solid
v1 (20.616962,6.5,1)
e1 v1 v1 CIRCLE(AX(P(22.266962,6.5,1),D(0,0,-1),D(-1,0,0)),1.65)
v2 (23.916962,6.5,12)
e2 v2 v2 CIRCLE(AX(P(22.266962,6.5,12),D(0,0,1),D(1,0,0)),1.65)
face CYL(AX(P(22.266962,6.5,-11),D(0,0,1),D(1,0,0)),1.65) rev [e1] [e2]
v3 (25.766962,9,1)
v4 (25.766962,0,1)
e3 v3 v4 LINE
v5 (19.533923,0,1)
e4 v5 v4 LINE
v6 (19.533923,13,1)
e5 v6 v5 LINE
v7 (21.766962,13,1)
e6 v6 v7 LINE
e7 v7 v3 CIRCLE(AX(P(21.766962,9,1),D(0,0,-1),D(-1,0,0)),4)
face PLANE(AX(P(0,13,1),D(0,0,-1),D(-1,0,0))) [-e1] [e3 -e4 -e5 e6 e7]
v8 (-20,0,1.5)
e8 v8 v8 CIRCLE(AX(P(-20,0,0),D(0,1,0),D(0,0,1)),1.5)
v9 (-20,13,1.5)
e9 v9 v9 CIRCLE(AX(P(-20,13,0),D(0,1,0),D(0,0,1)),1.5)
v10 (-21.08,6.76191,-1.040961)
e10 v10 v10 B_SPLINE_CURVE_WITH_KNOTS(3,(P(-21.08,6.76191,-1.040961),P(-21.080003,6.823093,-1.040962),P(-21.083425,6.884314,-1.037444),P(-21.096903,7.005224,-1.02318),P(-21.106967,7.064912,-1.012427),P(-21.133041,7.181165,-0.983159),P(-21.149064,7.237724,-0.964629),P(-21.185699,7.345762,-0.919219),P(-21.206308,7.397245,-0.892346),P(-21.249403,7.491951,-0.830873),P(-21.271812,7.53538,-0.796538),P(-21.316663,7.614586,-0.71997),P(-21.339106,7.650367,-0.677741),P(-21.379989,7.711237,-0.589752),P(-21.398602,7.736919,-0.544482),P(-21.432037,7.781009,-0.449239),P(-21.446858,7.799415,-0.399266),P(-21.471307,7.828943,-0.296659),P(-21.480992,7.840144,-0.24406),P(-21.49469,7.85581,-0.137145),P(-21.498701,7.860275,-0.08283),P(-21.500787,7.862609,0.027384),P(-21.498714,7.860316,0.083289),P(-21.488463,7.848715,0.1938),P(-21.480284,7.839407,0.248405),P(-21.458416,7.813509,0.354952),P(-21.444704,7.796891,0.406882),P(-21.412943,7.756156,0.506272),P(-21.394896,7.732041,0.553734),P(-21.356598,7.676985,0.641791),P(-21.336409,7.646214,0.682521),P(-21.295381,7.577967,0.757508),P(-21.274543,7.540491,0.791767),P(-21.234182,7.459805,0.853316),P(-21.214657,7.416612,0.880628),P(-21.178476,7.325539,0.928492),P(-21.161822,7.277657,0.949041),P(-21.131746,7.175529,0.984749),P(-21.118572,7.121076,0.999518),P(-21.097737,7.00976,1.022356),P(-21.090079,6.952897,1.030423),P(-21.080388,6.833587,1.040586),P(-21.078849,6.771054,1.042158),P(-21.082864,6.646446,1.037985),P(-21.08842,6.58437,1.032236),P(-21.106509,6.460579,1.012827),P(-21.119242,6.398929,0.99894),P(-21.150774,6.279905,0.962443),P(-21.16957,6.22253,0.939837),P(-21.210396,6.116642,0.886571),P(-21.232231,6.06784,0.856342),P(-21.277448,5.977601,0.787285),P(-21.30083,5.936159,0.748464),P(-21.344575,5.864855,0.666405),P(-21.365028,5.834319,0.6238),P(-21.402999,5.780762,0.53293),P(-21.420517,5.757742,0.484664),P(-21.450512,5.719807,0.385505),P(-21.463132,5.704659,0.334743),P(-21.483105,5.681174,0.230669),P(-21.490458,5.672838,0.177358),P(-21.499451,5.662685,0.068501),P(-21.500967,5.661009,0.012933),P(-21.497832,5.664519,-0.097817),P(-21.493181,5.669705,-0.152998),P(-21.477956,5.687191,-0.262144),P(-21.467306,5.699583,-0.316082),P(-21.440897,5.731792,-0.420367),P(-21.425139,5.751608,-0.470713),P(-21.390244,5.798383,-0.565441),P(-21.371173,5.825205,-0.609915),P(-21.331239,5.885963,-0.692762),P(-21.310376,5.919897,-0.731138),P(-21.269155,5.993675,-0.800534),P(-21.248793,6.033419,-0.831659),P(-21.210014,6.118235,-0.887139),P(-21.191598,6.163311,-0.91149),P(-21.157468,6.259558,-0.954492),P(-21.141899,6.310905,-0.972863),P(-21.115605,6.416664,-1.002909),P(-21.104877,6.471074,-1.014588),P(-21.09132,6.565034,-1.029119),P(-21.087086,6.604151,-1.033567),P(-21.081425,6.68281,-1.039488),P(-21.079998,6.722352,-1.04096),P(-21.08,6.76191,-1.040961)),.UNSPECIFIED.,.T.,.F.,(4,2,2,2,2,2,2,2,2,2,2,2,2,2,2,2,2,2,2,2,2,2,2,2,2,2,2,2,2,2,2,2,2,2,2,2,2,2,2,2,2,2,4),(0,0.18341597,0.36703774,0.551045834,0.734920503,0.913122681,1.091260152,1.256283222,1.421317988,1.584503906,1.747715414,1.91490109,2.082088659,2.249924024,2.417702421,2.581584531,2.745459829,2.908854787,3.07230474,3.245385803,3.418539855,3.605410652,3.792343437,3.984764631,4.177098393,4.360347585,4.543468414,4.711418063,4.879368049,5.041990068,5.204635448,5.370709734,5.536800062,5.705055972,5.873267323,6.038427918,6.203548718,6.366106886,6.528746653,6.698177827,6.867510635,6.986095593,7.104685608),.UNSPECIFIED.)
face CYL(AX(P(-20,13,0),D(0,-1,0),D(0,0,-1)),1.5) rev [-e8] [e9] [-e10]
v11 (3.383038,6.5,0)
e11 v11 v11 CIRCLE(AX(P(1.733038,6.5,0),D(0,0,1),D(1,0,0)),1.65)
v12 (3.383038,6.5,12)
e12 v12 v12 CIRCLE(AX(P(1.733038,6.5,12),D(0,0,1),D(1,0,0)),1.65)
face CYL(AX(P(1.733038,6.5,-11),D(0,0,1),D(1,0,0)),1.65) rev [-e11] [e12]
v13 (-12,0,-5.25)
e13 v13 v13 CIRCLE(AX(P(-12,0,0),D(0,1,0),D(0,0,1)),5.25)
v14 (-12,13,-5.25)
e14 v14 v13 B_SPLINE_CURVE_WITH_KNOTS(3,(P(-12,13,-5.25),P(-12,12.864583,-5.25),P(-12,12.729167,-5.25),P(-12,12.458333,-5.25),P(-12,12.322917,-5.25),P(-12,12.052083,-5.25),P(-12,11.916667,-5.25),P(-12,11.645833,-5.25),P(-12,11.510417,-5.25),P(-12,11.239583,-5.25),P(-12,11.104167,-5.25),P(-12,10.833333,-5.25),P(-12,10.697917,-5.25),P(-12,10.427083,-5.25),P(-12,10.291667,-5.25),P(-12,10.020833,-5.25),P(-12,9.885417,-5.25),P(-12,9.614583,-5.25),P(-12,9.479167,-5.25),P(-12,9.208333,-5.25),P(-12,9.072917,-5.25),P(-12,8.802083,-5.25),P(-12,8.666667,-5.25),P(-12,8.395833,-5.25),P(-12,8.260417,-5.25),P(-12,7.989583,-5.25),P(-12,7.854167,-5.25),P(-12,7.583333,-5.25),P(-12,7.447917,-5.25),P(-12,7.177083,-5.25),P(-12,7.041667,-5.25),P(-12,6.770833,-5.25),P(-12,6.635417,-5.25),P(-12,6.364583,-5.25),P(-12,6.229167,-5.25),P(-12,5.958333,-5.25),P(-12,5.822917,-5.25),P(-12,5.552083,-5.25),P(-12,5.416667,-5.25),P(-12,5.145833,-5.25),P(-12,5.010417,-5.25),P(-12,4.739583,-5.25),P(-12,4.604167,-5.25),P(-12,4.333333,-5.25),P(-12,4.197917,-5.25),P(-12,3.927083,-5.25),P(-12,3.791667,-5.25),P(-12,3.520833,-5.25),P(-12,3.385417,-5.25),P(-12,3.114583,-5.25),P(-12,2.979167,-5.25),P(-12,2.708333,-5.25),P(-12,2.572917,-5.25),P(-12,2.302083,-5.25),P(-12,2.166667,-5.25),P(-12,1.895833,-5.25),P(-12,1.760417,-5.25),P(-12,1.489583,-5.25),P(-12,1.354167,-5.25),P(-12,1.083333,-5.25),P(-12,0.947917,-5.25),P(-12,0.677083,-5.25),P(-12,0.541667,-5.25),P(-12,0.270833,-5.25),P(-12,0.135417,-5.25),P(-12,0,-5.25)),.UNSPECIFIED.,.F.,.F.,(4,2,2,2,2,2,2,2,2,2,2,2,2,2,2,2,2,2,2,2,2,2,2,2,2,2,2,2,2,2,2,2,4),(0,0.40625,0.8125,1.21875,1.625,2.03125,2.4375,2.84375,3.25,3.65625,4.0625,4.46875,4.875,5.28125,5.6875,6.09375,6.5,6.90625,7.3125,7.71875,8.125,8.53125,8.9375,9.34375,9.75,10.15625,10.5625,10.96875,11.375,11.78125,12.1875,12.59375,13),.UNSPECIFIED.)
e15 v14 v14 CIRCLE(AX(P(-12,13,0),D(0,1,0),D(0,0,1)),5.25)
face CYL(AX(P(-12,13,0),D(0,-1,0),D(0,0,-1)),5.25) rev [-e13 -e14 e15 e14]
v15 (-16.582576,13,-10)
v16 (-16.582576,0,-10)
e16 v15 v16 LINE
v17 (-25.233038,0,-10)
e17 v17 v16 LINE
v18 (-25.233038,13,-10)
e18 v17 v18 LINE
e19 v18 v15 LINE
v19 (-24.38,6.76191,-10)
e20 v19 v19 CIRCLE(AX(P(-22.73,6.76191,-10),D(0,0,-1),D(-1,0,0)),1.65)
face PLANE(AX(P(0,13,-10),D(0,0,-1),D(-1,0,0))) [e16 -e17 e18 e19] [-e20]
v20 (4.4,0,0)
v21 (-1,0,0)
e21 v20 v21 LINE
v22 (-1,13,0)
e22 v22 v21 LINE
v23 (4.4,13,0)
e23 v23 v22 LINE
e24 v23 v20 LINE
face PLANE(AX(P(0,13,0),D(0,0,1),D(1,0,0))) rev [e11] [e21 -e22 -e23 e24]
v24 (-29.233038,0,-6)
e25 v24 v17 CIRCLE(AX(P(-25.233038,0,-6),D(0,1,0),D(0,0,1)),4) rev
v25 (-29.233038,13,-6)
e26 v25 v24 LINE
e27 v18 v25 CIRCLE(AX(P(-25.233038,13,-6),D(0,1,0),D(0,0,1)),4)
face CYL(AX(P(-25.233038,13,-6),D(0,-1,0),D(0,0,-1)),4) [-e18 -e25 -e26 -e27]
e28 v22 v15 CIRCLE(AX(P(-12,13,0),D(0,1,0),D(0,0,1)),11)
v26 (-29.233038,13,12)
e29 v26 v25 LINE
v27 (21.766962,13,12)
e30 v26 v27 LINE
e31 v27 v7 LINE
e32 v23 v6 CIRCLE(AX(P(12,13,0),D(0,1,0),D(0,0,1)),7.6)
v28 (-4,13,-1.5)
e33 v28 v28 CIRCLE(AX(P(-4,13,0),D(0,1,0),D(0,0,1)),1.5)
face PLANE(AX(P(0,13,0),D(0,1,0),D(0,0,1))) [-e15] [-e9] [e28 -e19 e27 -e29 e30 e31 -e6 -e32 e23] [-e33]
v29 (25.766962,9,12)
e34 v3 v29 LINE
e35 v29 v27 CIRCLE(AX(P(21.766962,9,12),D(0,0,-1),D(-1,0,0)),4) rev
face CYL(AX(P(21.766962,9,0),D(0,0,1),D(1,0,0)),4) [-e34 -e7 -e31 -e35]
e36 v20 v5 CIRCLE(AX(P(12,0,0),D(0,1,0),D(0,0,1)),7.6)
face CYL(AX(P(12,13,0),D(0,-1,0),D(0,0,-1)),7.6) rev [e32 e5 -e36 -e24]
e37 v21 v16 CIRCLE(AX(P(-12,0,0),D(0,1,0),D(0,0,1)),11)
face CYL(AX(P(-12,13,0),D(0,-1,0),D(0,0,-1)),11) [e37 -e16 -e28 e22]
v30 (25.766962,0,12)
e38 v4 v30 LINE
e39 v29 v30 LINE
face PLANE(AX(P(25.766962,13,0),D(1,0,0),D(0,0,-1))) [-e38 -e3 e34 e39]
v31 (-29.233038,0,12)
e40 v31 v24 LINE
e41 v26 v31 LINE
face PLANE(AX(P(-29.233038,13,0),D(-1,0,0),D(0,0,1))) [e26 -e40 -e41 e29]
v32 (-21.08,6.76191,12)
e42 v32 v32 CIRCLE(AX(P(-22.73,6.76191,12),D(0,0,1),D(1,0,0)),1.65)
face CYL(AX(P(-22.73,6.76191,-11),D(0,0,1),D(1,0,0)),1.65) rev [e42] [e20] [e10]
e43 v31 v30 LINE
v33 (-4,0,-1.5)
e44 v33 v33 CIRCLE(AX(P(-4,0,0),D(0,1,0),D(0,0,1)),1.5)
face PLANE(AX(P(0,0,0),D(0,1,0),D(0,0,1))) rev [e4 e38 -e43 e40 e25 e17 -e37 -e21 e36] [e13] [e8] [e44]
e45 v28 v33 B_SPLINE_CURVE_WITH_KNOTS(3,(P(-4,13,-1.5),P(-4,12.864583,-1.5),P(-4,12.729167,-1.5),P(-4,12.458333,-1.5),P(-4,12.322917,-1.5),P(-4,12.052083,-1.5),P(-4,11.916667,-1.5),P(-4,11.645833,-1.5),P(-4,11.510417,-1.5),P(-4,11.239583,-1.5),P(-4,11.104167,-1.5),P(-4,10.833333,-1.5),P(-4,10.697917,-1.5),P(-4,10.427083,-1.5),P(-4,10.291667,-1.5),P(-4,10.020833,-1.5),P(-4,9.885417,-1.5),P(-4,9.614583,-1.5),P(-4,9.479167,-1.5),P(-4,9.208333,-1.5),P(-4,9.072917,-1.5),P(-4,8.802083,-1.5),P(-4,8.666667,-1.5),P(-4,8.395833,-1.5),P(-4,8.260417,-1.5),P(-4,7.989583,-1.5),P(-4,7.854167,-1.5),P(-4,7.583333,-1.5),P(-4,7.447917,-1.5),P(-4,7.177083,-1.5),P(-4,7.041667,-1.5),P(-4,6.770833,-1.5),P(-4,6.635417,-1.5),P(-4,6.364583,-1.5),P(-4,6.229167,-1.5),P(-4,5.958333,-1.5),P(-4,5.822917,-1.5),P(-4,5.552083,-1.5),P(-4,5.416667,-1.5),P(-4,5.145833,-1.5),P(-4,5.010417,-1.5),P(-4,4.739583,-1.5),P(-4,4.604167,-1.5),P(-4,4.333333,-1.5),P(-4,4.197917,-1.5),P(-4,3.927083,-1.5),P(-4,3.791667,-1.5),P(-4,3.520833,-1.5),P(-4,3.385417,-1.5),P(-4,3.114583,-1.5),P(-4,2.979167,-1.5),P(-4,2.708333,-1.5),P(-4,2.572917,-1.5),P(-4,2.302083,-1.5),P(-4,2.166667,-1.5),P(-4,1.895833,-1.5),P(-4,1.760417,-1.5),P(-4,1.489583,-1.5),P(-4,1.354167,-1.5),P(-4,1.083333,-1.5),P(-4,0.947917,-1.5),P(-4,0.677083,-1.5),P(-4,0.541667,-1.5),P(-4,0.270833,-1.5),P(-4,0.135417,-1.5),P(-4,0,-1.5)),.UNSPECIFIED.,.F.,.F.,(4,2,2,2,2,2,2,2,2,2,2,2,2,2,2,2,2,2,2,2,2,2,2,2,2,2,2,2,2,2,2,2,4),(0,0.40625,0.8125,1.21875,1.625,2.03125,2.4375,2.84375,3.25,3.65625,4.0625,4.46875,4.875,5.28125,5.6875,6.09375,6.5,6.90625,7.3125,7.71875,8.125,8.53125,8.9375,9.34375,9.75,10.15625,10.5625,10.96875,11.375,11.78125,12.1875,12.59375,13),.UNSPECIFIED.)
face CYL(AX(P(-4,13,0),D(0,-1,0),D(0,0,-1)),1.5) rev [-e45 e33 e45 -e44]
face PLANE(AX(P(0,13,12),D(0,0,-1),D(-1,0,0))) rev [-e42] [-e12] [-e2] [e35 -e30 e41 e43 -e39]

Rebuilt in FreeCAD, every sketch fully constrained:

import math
import FreeCAD as App
import Part
import Sketcher

V = App.Vector
Q = App.Units.Quantity


def edges_at(feature, points):
    """Names of the edges that pass closest to the given points."""
    edges = feature.Shape.Edges
    near = lambda p: min(range(len(edges)), key=lambda i: edges[i].distToShape(Part.Vertex(*p))[0])
    return sorted({f"Edge{near(p) + 1}" for p in points})

doc = App.newDocument("Part")
body = doc.addObject("PartDesign::Body", "Body")

sketch1 = doc.addObject("Sketcher::SketchObject", "Sketch")
body.addObject(sketch1)
sketch1.AttachmentSupport = (doc.XZ_Plane, [""])
sketch1.MapMode = "FlatFace"
sketch1.addGeometry([
    Part.LineSegment(V(-16.582576, -10, 0), V(-29.233038, -10, 0)),
    Part.LineSegment(V(-29.233038, -10, 0), V(-29.233038, 12, 0)),
    Part.LineSegment(V(-29.233038, 12, 0), V(25.766962, 12, 0)),
    Part.LineSegment(V(25.766962, 12, 0), V(25.766962, 1, 0)),
    Part.LineSegment(V(25.766962, 1, 0), V(19.533923, 1, 0)),
    Part.ArcOfCircle(Part.Circle(V(12, 0, 0), V(0, 0, 1), 7.6), math.radians(7.560843), math.radians(180)),
    Part.LineSegment(V(4.4, 0, 0), V(-1, 0, 0)),
    Part.ArcOfCircle(Part.Circle(V(-12, 0, 0), V(0, 0, 1), 11), math.radians(-114.619977), math.radians(0)),
    Part.Circle(V(-20, 0, 0), V(0, 0, 1), 1.5),
    Part.Circle(V(-12, 0, 0), V(0, 0, 1), 5.25),
    Part.Circle(V(-4, 0, 0), V(0, 0, 1), 1.5),
], False)
sketch1.addConstraint([
    Sketcher.Constraint("Coincident", 0, 2, 1, 1),
    Sketcher.Constraint("Coincident", 1, 2, 2, 1),
    Sketcher.Constraint("Coincident", 2, 2, 3, 1),
    Sketcher.Constraint("Coincident", 3, 2, 4, 1),
    Sketcher.Constraint("Coincident", 4, 2, 5, 1),
    Sketcher.Constraint("Coincident", 5, 2, 6, 1),
    Sketcher.Constraint("Coincident", 6, 2, 7, 2),
    Sketcher.Constraint("Coincident", 7, 1, 0, 1),
    Sketcher.Constraint("Horizontal", 0),
    Sketcher.Constraint("Vertical", 1),
    Sketcher.Constraint("Horizontal", 2),
    Sketcher.Constraint("Vertical", 3),
    Sketcher.Constraint("Horizontal", 4),
    Sketcher.Constraint("Horizontal", 6),
    Sketcher.Constraint("Coincident", 9, 3, 7, 3),
    Sketcher.Constraint("Equal", 8, 10),
    Sketcher.Constraint("Symmetric", 5, 3, 7, 3, -1, 1),
    Sketcher.Constraint("PointOnObject", 5, 3, -1),
    Sketcher.Constraint("PointOnObject", 8, 3, -1),
    Sketcher.Constraint("PointOnObject", 10, 3, -1),
    Sketcher.Constraint("PointOnObject", 5, 2, -1),
    Sketcher.Constraint("Diameter", 8, Q("3 mm")),
    Sketcher.Constraint("Radius", 7, Q("11 mm")),
    Sketcher.Constraint("Diameter", 9, Q("10.5 mm")),
    Sketcher.Constraint("Radius", 5, Q("7.6 mm")),
    Sketcher.Constraint("DistanceX", 2, 1, 2, 2, Q("55 mm")),
    Sketcher.Constraint("DistanceY", 1, 1, 1, 2, Q("22 mm")),
    Sketcher.Constraint("DistanceY", 3, 2, 3, 1, Q("11 mm")),
    Sketcher.Constraint("DistanceX", 6, 2, 6, 1, Q("5.4 mm")),
    Sketcher.Constraint("DistanceX", 8, 3, -1, 1, Q("20 mm")),
    Sketcher.Constraint("DistanceX", 10, 3, -1, 1, Q("4 mm")),
    Sketcher.Constraint("DistanceY", 0, 2, -1, 1, Q("10 mm")),
    Sketcher.Constraint("DistanceX", 4, 2, 4, 1, Q("6.233038 mm")),
])
pad1 = doc.addObject("PartDesign::Pad", "Pad")
body.addObject(pad1)
pad1.Profile = sketch1
pad1.Length = 13
pad1.Reversed = True
doc.recompute()

fillet = doc.addObject("PartDesign::Fillet", "Fillet")
body.addObject(fillet)
fillet.Base = (pad1, edges_at(pad1, [(25.767, 13, 6.5)]))
fillet.Radius = 4
doc.recompute()

fillet2 = doc.addObject("PartDesign::Fillet", "Fillet001")
body.addObject(fillet2)
fillet2.Base = (fillet, edges_at(fillet, [(-29.233, 6.5, -10)]))
fillet2.Radius = 4

sketch2 = doc.addObject("Sketcher::SketchObject", "Sketch001")
body.addObject(sketch2)
sketch2.AttachmentSupport = (doc.XY_Plane, [""])
sketch2.MapMode = "FlatFace"
sketch2.AttachmentOffset = App.Placement(V(0, 0, 12), App.Rotation())
sketch2.addGeometry([
    Part.Circle(V(22.266962, 6.5, 0), V(0, 0, 1), 1.65),
    Part.Circle(V(1.733038, 6.5, 0), V(0, 0, 1), 1.65),
    Part.Circle(V(-22.73, 6.76191, 0), V(0, 0, 1), 1.65),
], False)
sketch2.addConstraint([
    Sketcher.Constraint("Equal", 0, 1),
    Sketcher.Constraint("Equal", 1, 2),
    Sketcher.Constraint("Horizontal", 0, 3, 1, 3),
    Sketcher.Constraint("Diameter", 0, Q("3.3 mm")),
    Sketcher.Constraint("DistanceY", -1, 1, 0, 3, Q("6.5 mm")),
    Sketcher.Constraint("DistanceX", 2, 3, -1, 1, Q("22.73 mm")),
    Sketcher.Constraint("DistanceX", -1, 1, 0, 3, Q("22.266962 mm")),
    Sketcher.Constraint("DistanceX", -1, 1, 1, 3, Q("1.733038 mm")),
    Sketcher.Constraint("DistanceY", -1, 1, 2, 3, Q("6.76191 mm")),
])
pocket1 = doc.addObject("PartDesign::Pocket", "Pocket")
body.addObject(pocket1)
pocket1.Profile = sketch2
pocket1.Type = "ThroughAll"

doc.recompute()
